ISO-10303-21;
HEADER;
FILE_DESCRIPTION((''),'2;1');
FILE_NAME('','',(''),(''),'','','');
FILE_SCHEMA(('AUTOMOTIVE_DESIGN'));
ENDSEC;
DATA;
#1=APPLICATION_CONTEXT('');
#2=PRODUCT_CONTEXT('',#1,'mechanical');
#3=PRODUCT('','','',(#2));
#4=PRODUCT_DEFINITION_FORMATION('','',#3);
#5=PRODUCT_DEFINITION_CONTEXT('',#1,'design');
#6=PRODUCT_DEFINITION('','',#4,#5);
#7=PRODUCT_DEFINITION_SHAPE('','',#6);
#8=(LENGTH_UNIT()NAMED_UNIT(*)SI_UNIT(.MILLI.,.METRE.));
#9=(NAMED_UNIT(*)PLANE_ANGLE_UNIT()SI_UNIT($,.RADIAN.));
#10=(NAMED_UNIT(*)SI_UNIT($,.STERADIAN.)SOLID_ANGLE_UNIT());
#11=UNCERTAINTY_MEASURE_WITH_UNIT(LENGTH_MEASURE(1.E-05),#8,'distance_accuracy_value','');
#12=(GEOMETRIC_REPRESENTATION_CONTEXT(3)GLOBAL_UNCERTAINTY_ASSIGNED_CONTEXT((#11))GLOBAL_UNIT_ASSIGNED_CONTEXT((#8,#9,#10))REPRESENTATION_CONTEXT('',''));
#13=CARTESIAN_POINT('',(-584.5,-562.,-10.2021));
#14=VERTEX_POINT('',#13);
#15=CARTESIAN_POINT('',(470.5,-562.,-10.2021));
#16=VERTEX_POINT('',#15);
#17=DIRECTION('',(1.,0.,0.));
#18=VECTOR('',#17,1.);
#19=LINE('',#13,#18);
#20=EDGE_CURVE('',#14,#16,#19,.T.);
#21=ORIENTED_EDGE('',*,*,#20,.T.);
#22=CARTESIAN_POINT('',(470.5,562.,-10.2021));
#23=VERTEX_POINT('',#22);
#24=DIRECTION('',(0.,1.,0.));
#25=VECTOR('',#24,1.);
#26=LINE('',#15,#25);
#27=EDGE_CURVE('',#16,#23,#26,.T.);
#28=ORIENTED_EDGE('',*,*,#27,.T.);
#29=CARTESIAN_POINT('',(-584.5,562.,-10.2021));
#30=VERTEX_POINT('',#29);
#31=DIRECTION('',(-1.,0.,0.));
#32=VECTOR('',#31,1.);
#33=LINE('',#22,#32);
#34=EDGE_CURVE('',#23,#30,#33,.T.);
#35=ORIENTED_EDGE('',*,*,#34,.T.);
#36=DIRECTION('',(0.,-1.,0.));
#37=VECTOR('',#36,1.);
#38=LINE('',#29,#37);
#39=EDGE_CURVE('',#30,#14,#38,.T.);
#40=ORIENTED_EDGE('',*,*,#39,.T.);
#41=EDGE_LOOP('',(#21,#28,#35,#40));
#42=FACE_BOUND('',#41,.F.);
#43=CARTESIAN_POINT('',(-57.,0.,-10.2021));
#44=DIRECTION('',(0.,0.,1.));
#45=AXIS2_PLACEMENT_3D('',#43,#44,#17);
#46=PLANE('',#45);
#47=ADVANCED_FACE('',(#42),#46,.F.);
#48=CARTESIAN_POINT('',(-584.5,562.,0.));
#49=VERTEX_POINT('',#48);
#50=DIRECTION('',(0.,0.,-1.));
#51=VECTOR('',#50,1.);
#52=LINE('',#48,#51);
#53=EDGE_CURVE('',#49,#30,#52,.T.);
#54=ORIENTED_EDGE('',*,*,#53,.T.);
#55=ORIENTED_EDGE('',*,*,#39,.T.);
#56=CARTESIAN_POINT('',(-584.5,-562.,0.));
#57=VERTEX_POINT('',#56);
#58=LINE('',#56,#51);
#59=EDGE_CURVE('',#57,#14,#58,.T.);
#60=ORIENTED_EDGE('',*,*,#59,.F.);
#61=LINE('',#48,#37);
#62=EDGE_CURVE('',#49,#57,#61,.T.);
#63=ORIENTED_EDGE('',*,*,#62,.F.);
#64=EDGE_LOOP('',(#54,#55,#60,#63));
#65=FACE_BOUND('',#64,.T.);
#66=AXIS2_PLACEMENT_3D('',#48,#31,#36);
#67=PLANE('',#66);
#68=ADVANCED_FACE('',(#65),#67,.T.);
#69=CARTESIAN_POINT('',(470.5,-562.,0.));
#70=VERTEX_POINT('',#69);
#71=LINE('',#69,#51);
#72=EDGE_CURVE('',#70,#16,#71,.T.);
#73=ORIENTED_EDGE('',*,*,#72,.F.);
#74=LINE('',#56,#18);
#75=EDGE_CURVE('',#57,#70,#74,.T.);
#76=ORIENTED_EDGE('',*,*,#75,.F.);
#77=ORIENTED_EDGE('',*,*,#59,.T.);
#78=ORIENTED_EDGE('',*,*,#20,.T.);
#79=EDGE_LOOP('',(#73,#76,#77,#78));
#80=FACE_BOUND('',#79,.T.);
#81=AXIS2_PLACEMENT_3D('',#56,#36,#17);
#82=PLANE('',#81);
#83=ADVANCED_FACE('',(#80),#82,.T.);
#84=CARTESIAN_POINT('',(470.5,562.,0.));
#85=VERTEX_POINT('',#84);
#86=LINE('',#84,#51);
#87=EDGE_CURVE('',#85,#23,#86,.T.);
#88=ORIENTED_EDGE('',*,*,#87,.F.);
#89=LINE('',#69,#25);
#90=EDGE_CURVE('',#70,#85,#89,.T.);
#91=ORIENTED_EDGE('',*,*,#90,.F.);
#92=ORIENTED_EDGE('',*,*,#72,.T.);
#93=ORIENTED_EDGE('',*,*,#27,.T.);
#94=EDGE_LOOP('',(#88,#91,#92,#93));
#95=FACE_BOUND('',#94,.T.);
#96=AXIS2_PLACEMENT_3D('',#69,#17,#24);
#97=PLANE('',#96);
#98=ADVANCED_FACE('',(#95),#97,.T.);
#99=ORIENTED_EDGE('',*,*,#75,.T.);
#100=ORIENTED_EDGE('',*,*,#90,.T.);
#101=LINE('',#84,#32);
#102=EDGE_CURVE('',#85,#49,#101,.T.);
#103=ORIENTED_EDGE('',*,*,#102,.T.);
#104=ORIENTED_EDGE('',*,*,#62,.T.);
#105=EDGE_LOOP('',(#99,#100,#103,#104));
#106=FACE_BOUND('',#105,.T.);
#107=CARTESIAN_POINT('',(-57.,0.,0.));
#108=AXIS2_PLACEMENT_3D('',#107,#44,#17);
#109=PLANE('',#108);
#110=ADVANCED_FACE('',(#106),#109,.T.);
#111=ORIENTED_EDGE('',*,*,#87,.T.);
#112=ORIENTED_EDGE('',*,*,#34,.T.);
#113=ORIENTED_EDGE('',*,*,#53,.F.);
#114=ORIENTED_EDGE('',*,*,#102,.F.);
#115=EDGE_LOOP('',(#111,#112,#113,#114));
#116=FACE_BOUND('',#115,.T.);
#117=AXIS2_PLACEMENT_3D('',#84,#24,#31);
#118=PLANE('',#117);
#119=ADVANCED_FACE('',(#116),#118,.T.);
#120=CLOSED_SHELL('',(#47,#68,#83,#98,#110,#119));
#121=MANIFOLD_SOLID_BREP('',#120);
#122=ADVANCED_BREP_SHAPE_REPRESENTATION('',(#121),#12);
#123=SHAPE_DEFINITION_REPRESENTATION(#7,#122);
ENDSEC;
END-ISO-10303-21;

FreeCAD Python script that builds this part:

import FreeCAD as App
import Part
import Sketcher

V = App.Vector
Q = App.Units.Quantity


def add_polygon(sketch, points):
    """Adds a closed chain of lines whose ends are joined by coincident constraints."""
    first, n = sketch.GeometryCount, len(points)
    for a, b in zip(points, points[1:] + points[:1]):
        sketch.addGeometry(Part.LineSegment(App.Vector(*a, 0), App.Vector(*b, 0)), False)
    for i in range(n):
        sketch.addConstraint(Sketcher.Constraint("Coincident", first + i, 2, first + (i + 1) % n, 1))

doc = App.newDocument("Part")
body = doc.addObject("PartDesign::Body", "Body")

sketch1 = body.newObject("Sketcher::SketchObject", "Sketch")
sketch1.AttachmentSupport = (doc.getObject("XY_Plane"), [""])
sketch1.MapMode = "FlatFace"
add_polygon(sketch1, [(470.5, -562), (470.5, 562), (-584.5, 562), (-584.5, -562)])
sketch1.addConstraint([
    Sketcher.Constraint("Vertical", 0),
    Sketcher.Constraint("Horizontal", 1),
    Sketcher.Constraint("Vertical", 2),
    Sketcher.Constraint("Horizontal", 3),
    Sketcher.Constraint("DistanceX", 1, 2, 1, 1, Q("1055 mm")),
    Sketcher.Constraint("DistanceY", 0, 1, 0, 2, Q("1124 mm")),
    Sketcher.Constraint("DistanceY", -1, 1, 0, 2, Q("562 mm")),
    Sketcher.Constraint("DistanceX", -1, 1, 0, 2, Q("470.5 mm")),
])
pad1 = body.newObject("PartDesign::Pad", "Pad")
pad1.Profile = sketch1
pad1.Length = 10.2021
pad1.Reversed = True

doc.recompute()
